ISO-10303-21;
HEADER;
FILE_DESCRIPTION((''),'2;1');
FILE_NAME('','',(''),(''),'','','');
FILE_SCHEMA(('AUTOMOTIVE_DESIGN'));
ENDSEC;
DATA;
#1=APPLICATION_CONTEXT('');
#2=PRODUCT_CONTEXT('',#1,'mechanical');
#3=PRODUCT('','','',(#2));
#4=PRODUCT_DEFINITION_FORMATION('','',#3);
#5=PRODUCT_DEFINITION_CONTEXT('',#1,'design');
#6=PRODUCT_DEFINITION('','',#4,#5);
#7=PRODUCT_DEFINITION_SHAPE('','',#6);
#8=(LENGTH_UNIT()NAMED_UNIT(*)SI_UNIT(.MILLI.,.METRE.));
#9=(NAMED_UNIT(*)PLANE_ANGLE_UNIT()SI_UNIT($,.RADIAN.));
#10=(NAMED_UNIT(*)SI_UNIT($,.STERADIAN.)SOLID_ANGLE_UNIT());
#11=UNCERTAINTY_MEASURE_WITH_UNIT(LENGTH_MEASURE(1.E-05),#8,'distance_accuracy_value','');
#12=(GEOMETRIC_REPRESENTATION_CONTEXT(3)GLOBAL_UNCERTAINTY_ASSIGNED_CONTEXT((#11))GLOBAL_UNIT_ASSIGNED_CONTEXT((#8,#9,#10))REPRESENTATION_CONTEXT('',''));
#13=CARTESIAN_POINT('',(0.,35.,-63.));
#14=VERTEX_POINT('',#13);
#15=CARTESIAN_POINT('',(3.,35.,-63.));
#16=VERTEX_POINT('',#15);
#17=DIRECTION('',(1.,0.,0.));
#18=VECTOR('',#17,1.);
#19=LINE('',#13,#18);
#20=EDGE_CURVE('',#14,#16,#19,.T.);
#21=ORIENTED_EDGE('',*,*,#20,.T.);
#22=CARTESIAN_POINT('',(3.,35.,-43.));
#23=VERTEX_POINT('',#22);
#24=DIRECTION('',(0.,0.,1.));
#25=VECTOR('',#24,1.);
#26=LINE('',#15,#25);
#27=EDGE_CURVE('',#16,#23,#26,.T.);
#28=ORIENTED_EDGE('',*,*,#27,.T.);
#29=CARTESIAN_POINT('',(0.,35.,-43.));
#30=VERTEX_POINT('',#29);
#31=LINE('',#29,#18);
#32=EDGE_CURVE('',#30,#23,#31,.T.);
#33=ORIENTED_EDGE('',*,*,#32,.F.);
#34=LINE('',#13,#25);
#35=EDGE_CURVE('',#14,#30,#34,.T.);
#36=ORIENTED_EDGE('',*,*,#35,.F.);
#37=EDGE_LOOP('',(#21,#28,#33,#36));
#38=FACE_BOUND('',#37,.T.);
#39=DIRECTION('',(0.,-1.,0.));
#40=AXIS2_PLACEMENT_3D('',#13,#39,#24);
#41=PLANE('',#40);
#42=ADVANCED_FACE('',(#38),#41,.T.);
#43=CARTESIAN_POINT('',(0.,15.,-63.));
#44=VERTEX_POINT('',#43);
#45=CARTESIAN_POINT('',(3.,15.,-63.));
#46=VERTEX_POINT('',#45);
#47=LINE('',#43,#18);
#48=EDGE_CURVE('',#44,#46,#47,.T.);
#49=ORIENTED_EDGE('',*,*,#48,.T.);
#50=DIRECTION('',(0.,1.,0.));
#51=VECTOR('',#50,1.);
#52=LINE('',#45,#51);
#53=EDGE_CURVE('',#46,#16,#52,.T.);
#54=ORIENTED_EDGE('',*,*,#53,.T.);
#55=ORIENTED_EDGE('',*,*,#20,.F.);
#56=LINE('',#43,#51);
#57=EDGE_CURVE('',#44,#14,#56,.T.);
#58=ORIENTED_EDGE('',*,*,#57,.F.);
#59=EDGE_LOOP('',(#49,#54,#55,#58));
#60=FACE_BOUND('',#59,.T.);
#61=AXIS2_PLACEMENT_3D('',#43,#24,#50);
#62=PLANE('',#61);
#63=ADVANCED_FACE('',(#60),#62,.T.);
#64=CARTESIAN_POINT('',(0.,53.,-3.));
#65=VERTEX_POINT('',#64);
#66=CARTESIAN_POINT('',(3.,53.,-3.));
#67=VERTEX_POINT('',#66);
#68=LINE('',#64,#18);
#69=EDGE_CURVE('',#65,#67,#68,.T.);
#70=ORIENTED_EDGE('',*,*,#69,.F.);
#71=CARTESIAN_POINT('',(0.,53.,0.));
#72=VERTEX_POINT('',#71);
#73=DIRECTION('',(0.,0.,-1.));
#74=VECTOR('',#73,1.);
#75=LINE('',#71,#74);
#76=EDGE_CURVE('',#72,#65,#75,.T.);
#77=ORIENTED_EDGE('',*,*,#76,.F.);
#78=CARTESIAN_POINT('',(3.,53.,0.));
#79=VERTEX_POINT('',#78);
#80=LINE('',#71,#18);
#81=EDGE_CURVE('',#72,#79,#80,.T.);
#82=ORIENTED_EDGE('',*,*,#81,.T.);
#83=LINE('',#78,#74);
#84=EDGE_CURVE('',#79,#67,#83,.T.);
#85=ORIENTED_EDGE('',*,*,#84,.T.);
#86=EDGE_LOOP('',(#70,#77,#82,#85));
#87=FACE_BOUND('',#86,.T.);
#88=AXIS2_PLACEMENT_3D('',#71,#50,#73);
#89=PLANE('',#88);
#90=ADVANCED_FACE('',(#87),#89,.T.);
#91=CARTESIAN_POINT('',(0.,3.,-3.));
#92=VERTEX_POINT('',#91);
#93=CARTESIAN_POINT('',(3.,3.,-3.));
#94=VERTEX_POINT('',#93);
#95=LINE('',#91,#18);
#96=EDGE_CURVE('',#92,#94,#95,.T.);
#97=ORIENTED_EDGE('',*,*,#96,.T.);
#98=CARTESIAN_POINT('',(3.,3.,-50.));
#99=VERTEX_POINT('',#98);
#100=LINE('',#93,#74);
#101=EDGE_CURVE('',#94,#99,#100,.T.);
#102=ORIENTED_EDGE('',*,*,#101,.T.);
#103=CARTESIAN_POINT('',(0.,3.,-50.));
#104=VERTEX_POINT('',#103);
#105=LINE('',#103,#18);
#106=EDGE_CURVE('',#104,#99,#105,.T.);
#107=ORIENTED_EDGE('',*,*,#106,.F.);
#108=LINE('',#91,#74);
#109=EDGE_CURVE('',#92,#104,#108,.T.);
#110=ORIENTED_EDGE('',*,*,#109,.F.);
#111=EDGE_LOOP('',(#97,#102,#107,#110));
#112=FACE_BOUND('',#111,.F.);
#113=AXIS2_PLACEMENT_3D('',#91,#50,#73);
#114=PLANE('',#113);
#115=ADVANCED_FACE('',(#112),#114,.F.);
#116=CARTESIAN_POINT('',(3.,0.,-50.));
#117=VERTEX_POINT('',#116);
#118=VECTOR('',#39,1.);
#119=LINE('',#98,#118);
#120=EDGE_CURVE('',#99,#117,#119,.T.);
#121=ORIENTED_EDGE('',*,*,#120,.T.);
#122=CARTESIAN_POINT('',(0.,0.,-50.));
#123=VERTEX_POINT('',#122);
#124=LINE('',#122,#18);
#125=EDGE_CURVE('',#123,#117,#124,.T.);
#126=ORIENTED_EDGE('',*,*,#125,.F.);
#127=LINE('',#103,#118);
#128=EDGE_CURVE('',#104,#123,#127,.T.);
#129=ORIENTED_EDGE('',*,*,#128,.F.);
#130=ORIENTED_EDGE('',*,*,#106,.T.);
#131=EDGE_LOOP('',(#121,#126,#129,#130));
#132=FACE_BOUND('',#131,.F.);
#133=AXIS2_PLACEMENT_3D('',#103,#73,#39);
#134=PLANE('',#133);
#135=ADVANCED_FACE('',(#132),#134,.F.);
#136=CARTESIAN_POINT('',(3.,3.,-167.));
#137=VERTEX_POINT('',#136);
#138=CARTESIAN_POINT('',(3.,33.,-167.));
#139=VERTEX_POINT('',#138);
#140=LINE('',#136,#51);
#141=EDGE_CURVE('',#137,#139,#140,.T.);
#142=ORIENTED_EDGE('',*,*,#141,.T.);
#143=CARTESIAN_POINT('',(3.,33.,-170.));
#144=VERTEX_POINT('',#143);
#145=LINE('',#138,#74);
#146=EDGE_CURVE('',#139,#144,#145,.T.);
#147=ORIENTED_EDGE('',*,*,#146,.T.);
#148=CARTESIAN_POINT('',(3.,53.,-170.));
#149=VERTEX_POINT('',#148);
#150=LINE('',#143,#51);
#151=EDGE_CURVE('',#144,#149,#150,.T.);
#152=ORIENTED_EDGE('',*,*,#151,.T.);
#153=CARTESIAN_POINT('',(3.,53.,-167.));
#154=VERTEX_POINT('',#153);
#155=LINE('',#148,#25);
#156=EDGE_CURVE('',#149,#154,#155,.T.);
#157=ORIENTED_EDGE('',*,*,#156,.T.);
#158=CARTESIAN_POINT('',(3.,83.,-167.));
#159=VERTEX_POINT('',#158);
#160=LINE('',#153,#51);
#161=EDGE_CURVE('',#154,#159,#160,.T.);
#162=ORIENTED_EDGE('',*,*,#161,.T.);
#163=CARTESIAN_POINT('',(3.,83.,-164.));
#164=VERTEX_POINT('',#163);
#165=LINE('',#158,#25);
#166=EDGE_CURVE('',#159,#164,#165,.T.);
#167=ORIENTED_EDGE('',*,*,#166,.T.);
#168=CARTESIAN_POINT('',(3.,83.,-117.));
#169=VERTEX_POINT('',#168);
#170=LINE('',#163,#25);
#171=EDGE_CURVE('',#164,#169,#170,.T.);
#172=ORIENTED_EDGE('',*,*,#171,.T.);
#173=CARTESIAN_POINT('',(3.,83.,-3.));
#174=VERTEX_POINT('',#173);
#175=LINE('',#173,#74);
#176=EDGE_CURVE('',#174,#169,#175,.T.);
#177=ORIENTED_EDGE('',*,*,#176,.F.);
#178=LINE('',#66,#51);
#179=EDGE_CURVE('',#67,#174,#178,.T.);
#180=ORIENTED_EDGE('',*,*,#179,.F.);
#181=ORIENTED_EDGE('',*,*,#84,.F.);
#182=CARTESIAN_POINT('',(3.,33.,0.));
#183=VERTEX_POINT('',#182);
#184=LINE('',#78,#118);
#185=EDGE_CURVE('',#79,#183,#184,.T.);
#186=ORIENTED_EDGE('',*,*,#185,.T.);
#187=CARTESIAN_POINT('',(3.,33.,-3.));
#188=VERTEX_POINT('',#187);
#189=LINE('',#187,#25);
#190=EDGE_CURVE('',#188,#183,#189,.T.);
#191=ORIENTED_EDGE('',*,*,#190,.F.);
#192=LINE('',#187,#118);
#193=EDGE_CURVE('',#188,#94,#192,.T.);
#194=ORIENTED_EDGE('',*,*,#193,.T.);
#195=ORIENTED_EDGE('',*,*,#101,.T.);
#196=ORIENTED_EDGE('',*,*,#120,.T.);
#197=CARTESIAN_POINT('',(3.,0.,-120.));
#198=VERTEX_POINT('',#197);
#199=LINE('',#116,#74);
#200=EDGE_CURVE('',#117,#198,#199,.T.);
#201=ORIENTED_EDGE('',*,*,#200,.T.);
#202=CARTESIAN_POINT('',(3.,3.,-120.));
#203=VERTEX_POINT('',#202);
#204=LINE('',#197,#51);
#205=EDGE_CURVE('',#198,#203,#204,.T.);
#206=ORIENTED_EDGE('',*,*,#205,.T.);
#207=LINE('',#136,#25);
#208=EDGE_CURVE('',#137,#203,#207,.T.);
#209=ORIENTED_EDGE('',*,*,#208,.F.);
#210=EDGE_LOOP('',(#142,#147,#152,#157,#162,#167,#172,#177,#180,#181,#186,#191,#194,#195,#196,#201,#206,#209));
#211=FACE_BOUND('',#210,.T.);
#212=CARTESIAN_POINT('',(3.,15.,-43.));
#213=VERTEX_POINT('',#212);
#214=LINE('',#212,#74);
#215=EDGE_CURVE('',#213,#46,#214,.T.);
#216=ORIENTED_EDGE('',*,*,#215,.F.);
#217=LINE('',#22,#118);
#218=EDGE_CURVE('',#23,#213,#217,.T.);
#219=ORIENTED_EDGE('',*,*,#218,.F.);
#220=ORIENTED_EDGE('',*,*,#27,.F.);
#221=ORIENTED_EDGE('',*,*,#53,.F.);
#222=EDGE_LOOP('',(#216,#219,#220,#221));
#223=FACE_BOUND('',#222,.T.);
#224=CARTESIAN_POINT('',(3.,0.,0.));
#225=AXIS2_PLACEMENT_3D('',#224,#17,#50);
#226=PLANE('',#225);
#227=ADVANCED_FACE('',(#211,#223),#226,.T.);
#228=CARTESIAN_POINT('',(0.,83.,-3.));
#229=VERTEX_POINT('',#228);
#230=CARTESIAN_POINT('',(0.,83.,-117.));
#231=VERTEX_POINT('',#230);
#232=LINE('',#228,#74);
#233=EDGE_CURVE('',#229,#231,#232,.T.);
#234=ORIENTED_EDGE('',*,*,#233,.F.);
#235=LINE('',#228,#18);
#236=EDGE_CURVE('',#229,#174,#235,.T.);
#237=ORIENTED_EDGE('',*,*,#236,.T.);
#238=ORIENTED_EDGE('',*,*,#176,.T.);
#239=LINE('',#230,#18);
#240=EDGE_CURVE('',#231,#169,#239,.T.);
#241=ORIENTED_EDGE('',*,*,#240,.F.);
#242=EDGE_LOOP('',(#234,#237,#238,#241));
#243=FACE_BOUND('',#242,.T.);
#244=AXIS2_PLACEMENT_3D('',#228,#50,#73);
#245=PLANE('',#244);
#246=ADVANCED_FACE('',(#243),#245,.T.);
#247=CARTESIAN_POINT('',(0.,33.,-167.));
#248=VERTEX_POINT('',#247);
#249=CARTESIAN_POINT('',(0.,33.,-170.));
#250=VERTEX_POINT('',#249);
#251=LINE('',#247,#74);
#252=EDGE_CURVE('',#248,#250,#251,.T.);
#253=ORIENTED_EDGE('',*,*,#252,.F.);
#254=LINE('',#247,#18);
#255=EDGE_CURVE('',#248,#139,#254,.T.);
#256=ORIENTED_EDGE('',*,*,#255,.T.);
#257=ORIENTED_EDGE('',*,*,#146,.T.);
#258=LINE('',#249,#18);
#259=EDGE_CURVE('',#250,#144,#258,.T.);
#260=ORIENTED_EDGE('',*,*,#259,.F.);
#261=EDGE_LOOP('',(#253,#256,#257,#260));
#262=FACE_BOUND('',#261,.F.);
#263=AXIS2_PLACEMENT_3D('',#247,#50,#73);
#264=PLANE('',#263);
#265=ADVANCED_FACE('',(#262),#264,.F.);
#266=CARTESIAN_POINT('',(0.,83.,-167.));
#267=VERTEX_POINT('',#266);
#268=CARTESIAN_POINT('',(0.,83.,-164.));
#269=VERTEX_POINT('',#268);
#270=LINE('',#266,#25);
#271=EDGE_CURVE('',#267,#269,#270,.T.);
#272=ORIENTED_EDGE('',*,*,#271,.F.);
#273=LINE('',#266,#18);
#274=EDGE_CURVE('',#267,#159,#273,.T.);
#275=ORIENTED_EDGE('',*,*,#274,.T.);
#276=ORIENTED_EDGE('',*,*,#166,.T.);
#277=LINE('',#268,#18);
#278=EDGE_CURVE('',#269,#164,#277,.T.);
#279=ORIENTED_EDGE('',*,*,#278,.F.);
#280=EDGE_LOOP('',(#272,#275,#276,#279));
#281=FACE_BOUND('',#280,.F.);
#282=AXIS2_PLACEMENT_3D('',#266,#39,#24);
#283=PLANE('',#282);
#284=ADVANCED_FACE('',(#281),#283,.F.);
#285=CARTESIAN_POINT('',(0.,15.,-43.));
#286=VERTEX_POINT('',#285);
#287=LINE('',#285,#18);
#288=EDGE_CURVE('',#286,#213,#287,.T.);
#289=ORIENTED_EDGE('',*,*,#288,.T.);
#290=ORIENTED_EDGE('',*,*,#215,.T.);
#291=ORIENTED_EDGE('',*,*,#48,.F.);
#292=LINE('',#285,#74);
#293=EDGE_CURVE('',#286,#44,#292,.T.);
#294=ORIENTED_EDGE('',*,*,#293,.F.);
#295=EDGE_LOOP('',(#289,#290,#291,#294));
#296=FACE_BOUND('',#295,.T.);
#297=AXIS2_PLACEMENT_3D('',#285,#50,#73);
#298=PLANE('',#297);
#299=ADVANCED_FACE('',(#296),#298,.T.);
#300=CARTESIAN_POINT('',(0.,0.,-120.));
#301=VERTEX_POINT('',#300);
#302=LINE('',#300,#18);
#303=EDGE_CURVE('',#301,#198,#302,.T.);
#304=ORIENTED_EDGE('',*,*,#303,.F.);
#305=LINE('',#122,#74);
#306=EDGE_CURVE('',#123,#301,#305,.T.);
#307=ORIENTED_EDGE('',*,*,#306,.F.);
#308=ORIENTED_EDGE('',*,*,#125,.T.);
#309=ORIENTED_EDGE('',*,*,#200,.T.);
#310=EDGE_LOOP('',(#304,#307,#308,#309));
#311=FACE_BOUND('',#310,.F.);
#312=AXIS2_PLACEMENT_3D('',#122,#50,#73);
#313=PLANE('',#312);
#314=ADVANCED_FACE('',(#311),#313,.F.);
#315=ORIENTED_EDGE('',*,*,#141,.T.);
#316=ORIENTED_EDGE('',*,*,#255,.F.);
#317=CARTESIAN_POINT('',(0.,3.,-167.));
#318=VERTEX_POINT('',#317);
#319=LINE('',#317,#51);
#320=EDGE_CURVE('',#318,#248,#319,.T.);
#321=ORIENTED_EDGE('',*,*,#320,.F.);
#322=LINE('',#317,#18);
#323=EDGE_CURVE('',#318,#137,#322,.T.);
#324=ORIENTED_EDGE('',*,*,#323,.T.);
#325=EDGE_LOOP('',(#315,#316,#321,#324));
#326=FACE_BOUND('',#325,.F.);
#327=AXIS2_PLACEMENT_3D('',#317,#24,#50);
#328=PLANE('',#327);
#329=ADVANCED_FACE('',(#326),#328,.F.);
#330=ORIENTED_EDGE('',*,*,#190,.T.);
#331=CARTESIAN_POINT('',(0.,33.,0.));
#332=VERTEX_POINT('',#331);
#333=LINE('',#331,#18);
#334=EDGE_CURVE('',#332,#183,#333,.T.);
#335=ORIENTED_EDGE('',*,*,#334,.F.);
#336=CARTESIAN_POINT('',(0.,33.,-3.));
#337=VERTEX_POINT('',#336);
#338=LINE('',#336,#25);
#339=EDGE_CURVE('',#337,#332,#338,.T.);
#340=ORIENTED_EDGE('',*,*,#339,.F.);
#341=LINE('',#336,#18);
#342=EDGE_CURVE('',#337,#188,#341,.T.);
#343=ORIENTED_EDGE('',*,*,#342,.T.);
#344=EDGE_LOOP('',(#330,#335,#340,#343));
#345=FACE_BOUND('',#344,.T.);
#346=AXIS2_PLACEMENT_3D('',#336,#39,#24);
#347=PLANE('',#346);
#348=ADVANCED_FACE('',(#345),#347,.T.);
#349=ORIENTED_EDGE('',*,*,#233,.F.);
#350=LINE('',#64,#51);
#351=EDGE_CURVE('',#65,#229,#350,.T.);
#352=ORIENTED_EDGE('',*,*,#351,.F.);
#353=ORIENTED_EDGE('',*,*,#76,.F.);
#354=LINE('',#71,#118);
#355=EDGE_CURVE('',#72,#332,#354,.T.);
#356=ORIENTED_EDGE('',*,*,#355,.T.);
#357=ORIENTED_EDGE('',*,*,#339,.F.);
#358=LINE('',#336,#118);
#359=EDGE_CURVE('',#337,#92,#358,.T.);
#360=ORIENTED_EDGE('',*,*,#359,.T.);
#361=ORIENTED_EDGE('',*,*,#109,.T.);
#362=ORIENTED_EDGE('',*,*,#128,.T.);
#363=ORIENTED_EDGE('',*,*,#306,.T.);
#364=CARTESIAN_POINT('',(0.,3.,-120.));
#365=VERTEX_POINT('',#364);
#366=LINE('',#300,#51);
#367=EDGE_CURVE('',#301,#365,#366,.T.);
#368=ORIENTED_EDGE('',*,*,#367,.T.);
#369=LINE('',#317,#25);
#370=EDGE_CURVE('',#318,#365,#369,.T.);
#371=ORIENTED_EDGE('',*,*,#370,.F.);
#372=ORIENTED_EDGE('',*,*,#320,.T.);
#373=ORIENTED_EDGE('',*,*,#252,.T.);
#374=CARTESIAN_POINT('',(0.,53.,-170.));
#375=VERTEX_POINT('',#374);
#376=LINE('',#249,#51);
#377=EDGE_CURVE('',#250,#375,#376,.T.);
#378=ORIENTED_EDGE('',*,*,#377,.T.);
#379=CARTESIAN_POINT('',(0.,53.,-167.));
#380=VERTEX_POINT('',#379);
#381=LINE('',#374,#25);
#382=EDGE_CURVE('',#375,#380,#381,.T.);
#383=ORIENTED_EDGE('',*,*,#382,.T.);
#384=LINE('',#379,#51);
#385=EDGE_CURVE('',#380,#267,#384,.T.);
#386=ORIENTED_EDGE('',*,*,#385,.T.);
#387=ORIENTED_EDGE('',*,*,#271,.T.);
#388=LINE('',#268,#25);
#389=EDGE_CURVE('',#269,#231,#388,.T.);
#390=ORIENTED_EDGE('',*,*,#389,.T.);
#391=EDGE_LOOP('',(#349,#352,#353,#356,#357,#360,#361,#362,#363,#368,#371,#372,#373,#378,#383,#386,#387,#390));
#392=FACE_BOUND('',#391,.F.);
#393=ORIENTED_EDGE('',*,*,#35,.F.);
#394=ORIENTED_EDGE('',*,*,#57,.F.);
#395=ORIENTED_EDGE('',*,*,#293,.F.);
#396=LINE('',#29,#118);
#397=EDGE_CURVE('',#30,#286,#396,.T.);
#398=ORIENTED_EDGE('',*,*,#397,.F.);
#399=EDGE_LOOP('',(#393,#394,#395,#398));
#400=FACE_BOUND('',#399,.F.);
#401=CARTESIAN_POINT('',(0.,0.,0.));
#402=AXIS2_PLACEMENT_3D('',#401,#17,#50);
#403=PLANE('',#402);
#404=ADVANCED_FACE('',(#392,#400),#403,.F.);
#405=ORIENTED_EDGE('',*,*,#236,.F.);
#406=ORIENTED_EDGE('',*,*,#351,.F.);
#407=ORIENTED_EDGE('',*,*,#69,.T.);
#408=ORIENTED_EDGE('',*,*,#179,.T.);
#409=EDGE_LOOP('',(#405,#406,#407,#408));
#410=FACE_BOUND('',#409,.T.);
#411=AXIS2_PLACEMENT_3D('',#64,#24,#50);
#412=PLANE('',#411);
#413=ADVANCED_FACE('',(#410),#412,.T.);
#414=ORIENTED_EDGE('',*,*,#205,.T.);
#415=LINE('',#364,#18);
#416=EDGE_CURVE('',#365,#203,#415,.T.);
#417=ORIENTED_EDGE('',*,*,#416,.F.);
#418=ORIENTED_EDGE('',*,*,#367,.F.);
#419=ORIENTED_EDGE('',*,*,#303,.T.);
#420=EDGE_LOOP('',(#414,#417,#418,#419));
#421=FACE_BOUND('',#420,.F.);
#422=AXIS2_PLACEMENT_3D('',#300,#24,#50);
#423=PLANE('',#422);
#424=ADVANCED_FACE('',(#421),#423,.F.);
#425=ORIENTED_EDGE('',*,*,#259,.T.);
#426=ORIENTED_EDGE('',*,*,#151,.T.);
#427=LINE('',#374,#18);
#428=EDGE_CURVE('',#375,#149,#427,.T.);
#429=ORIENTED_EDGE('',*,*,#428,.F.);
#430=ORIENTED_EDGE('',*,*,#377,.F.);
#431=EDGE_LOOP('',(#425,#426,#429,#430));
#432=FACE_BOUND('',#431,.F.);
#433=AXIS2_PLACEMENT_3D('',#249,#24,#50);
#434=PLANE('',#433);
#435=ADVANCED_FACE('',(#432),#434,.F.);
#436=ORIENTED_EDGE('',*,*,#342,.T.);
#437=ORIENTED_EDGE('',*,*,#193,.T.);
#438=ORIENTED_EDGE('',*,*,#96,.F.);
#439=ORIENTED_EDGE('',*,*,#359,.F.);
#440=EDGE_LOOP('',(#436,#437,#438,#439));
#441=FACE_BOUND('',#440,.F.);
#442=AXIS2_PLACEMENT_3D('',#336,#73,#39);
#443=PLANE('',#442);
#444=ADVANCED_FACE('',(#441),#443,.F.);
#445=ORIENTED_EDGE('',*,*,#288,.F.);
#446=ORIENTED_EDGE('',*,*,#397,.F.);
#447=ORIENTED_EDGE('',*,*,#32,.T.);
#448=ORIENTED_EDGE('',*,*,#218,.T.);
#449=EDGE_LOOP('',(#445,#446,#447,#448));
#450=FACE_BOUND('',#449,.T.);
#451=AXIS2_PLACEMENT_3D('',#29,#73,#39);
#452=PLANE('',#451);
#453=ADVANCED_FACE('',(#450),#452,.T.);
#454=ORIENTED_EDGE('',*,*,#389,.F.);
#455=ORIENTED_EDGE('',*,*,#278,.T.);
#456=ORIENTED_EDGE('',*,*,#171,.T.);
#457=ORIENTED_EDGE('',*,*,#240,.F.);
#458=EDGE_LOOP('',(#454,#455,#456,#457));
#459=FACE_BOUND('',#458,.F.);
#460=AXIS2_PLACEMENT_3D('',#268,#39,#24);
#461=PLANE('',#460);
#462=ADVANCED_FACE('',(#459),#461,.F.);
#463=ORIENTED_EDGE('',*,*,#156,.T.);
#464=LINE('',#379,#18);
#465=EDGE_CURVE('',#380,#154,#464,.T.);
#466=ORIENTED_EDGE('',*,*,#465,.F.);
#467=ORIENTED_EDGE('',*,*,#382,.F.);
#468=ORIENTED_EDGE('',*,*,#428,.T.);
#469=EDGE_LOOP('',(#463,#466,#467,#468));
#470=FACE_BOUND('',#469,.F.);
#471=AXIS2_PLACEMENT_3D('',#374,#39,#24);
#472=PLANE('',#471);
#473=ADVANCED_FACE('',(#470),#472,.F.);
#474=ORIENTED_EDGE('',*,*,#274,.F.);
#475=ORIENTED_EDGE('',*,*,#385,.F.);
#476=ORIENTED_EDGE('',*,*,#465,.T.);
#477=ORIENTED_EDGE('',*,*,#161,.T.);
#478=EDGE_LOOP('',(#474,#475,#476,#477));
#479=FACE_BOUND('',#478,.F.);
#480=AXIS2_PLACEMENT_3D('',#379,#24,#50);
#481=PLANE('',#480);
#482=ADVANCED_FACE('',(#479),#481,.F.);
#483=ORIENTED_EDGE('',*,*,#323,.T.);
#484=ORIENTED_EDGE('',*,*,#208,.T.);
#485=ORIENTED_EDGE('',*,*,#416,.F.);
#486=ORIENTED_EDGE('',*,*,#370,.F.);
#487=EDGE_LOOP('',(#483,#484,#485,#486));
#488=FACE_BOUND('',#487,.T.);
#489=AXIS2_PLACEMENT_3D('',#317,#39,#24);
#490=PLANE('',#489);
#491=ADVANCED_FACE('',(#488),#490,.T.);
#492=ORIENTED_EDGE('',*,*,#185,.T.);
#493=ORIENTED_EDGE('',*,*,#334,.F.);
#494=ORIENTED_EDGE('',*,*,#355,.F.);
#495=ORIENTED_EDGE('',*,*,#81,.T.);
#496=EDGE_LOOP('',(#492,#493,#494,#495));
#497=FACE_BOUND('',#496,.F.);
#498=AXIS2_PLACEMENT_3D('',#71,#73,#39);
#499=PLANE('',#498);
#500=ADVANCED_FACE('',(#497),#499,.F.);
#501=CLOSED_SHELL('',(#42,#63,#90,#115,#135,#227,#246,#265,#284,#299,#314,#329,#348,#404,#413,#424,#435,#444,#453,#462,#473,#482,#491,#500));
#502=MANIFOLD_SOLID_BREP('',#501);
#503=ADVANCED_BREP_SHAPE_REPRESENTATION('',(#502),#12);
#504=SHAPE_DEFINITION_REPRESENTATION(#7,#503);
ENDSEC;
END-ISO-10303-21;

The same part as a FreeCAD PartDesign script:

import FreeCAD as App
import Part
import Sketcher

V = App.Vector
Q = App.Units.Quantity


def add_polygon(sketch, points):
    """Adds a closed chain of lines whose ends are joined by coincident constraints."""
    first, n = sketch.GeometryCount, len(points)
    for a, b in zip(points, points[1:] + points[:1]):
        sketch.addGeometry(Part.LineSegment(App.Vector(*a, 0), App.Vector(*b, 0)), False)
    for i in range(n):
        sketch.addConstraint(Sketcher.Constraint("Coincident", first + i, 2, first + (i + 1) % n, 1))

doc = App.newDocument("Part")
body = doc.addObject("PartDesign::Body", "Body")

# Sketch on YZ plane
sketch1 = body.newObject("Sketcher::SketchObject", "Sketch")
sketch1.AttachmentSupport = (doc.getObject("YZ_Plane"), [""])
sketch1.MapMode = "FlatFace"
add_polygon(sketch1, [(33, -3), (3, -3), (3, -50), (0, -50), (0, -120), (3, -120), (3, -167), (33, -167), (33, -170), (53, -170), (53, -167), (83, -167), (83, -3), (53, -3), (53, 0), (33, 0)])  # lines 0-15
add_polygon(sketch1, [(15, -63), (15, -43), (35, -43), (35, -63)])  # lines 16-19
sketch1.addConstraint([
    Sketcher.Constraint("Horizontal", 0),
    Sketcher.Constraint("Vertical", 1),
    Sketcher.Constraint("Horizontal", 2),
    Sketcher.Constraint("Vertical", 3),
    Sketcher.Constraint("Horizontal", 4),
    Sketcher.Constraint("Vertical", 5),
    Sketcher.Constraint("Horizontal", 6),
    Sketcher.Constraint("Vertical", 7),
    Sketcher.Constraint("Horizontal", 8),
    Sketcher.Constraint("Vertical", 9),
    Sketcher.Constraint("Horizontal", 10),
    Sketcher.Constraint("Vertical", 11),
    Sketcher.Constraint("Horizontal", 12),
    Sketcher.Constraint("Vertical", 13),
    Sketcher.Constraint("Horizontal", 14),
    Sketcher.Constraint("Vertical", 15),
    Sketcher.Constraint("Vertical", 16),
    Sketcher.Constraint("Horizontal", 17),
    Sketcher.Constraint("Vertical", 18),
    Sketcher.Constraint("Horizontal", 19),
    Sketcher.Constraint("PointOnObject", 2, 2, -2),
    Sketcher.Constraint("PointOnObject", 13, 2, -1),
    Sketcher.Constraint("Horizontal", 6, 2, 9, 2),
    Sketcher.Constraint("Horizontal", 0, 2, 11, 2),
    Sketcher.Constraint("Vertical", 1, 2, 4, 2),
    Sketcher.Constraint("Vertical", 9, 2, 12, 2),
    Sketcher.Constraint("Vertical", 7, 2, 14, 2),
    Sketcher.Constraint("Equal", 6, 10),
    Sketcher.Constraint("Equal", 14, 17),
    Sketcher.Constraint("Equal", 1, 5),
    Sketcher.Constraint("Equal", 4, 7),
    Sketcher.Constraint("Equal", 9, 13),
    Sketcher.Constraint("Equal", 19, 16),
    Sketcher.Constraint("DistanceX", 0, 2, 0, 1, Q("30 mm")),
    Sketcher.Constraint("DistanceX", 2, 2, 2, 1, Q("3 mm")),
    Sketcher.Constraint("DistanceX", 8, 1, 8, 2, Q("20 mm")),
    Sketcher.Constraint("DistanceY", 1, 2, 1, 1, Q("47 mm")),
    Sketcher.Constraint("DistanceY", 3, 2, 3, 1, Q("70 mm")),
    Sketcher.Constraint("DistanceX", -1, 1, 16, 2, Q("15 mm")),
    Sketcher.Constraint("DistanceY", 16, 2, -1, 1, Q("43 mm")),
])
pad1 = body.newObject("PartDesign::Pad", "Pad")
pad1.Profile = sketch1
pad1.Length = 3

doc.recompute()
